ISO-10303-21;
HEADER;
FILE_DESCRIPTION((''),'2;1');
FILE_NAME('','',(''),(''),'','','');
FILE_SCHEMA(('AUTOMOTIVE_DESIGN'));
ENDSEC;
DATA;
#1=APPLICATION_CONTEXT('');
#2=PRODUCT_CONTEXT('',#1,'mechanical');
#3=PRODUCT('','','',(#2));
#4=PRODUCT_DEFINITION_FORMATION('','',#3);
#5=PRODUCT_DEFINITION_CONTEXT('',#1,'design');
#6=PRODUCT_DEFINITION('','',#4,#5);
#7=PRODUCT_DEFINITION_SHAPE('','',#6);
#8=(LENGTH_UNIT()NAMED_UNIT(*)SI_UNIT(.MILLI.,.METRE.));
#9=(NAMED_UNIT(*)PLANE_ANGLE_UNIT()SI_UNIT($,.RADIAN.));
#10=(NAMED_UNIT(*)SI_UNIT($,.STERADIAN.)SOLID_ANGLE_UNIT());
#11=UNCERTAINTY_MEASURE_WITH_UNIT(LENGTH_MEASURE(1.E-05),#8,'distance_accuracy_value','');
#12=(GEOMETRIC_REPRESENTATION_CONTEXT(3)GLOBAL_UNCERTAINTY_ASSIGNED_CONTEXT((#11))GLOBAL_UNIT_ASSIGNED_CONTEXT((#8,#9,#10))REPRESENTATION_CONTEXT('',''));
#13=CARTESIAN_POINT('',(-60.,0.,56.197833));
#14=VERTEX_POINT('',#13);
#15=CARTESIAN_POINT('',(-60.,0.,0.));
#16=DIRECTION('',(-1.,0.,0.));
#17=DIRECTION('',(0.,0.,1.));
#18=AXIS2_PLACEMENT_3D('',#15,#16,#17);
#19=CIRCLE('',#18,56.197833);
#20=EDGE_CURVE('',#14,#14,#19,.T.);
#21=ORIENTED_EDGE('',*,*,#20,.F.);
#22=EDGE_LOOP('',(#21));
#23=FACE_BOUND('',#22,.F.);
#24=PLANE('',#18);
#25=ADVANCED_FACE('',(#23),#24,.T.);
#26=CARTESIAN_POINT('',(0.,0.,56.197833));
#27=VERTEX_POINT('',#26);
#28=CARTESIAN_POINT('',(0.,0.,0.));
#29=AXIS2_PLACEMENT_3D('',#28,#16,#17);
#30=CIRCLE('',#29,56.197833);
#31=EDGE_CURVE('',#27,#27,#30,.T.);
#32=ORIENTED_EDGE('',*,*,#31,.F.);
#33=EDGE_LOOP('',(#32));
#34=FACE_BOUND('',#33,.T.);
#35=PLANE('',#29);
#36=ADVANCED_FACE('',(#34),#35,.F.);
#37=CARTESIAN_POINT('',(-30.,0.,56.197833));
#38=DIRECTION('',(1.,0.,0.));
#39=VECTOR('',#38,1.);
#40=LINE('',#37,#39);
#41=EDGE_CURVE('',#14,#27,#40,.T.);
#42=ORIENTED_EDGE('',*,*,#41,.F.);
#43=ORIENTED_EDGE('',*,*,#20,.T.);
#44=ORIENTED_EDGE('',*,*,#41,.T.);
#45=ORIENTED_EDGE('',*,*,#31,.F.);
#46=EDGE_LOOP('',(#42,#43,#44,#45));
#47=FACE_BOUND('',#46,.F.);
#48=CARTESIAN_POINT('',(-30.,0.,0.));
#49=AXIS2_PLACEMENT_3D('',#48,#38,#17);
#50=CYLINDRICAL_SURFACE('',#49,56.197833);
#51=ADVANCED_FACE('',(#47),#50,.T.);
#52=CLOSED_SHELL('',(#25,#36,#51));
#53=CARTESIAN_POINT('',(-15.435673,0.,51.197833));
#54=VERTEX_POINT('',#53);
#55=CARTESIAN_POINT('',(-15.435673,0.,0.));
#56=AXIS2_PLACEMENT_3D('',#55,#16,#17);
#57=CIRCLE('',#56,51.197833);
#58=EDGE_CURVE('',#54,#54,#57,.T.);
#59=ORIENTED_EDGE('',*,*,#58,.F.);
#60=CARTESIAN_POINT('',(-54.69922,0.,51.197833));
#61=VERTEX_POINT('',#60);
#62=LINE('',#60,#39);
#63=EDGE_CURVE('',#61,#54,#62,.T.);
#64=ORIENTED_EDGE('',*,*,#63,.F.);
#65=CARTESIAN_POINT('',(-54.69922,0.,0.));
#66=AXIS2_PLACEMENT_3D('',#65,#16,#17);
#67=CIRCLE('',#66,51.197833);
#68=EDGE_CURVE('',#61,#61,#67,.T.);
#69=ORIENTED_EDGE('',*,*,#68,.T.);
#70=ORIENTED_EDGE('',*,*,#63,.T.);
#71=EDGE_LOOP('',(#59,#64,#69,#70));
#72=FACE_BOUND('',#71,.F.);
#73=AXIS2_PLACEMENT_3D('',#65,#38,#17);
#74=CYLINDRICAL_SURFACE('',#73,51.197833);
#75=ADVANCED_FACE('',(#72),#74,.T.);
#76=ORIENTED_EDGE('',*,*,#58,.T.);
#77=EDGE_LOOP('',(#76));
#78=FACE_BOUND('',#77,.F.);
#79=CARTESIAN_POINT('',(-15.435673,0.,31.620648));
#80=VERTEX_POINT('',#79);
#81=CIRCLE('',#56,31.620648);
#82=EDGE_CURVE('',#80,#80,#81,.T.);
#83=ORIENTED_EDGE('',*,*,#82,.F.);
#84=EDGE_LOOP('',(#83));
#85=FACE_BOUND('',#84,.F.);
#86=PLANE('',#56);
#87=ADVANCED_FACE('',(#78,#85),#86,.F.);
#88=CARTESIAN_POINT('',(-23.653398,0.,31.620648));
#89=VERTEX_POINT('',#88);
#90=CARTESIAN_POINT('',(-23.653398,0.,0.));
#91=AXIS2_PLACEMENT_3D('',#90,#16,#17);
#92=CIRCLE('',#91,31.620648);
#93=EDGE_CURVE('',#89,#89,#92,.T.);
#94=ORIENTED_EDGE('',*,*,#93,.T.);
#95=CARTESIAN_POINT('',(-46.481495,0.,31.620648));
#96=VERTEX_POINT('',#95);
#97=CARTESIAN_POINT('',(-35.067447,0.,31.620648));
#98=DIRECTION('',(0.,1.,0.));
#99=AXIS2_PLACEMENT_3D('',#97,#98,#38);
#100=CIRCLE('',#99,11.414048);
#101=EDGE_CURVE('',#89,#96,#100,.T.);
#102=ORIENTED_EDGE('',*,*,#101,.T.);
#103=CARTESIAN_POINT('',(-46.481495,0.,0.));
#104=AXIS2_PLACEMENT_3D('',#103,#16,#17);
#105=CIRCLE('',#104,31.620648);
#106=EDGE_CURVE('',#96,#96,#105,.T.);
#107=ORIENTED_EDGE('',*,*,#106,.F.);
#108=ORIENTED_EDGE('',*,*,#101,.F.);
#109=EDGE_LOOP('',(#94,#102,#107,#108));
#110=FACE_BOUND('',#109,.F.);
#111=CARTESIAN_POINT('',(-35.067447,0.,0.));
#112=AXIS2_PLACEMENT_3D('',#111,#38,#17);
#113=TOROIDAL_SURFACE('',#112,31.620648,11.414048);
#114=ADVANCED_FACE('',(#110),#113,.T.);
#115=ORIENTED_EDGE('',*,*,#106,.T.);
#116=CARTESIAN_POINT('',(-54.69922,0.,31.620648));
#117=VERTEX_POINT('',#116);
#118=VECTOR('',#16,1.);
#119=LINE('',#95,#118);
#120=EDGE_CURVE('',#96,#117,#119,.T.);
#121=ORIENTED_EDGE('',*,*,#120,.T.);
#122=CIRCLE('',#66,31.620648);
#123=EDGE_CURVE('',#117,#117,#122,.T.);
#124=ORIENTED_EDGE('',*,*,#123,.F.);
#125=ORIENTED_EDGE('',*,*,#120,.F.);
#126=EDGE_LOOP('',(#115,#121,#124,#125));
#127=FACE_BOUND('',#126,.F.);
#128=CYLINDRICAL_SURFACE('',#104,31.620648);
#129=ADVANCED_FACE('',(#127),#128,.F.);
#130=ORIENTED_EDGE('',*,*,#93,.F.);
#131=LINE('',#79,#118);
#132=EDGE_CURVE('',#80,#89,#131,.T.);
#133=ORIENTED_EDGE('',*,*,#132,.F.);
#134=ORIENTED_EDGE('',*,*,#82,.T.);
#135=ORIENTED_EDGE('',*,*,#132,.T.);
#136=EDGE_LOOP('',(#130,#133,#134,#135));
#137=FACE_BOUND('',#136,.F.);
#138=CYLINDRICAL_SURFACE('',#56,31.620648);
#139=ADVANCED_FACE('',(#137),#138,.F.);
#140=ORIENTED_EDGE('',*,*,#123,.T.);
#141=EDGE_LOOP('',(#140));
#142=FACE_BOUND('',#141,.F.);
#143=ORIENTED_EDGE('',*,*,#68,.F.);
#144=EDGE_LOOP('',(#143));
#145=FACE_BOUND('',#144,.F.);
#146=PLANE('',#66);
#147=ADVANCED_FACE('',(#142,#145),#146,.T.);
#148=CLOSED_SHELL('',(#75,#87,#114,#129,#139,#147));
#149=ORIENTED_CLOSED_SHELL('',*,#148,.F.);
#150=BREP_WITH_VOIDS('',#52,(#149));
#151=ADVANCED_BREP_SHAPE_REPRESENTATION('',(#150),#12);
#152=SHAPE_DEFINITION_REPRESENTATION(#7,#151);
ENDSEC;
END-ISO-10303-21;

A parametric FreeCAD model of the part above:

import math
import FreeCAD as App
import Part
import Sketcher
Q = App.Units.Quantity


def add_polygon(sketch, points):
    """Adds a closed chain of lines whose ends are joined by coincident constraints."""
    first, n = sketch.GeometryCount, len(points)
    for a, b in zip(points, points[1:] + points[:1]):
        sketch.addGeometry(Part.LineSegment(App.Vector(*a, 0), App.Vector(*b, 0)), False)
    for i in range(n):
        sketch.addConstraint(Sketcher.Constraint("Coincident", first + i, 2, first + (i + 1) % n, 1))

doc = App.newDocument("Part")
body = doc.addObject("PartDesign::Body", "Body")

# Sketch on XZ plane
sketch1 = body.newObject("Sketcher::SketchObject", "Sketch")
sketch1.AttachmentSupport = (doc.getObject("XZ_Plane"), [""])
sketch1.MapMode = "FlatFace"
add_polygon(sketch1, [(-60, 56), (-60, 0), (0, 0), (0, 56)])  # lines 0-3
sketch1.addGeometry(Part.LineSegment(App.Vector(-46, 32, 0), App.Vector(-55, 32, 0)), False)  # 4
sketch1.addGeometry(Part.LineSegment(App.Vector(-55, 32, 0), App.Vector(-55, 51, 0)), False)  # 5
sketch1.addGeometry(Part.LineSegment(App.Vector(-55, 51, 0), App.Vector(-15, 51, 0)), False)  # 6
sketch1.addGeometry(Part.LineSegment(App.Vector(-15, 51, 0), App.Vector(-15, 32, 0)), False)  # 7
sketch1.addGeometry(Part.LineSegment(App.Vector(-15, 32, 0), App.Vector(-24, 32, 0)), False)  # 8
sketch1.addGeometry(Part.ArcOfCircle(Part.Circle(App.Vector(-35, 32, 0), App.Vector(0, 0, 1), 11), math.radians(180), math.radians(360)), False)  # 9
sketch1.addConstraint([
    Sketcher.Constraint("Coincident", 4, 2, 5, 1),
    Sketcher.Constraint("Coincident", 5, 2, 6, 1),
    Sketcher.Constraint("Coincident", 6, 2, 7, 1),
    Sketcher.Constraint("Coincident", 7, 2, 8, 1),
    Sketcher.Constraint("Coincident", 8, 2, 9, 2),
    Sketcher.Constraint("Coincident", 9, 1, 4, 1),
    Sketcher.Constraint("Vertical", 0),
    Sketcher.Constraint("Horizontal", 1),
    Sketcher.Constraint("Vertical", 2),
    Sketcher.Constraint("Horizontal", 3),
    Sketcher.Constraint("Horizontal", 4),
    Sketcher.Constraint("Vertical", 5),
    Sketcher.Constraint("Horizontal", 6),
    Sketcher.Constraint("Vertical", 7),
    Sketcher.Constraint("Horizontal", 8),
    Sketcher.Constraint("Coincident", 1, 2, -1, 1),
    Sketcher.Constraint("Horizontal", 9, 3, 4, 2),
    Sketcher.Constraint("Horizontal", 4, 2, 7, 2),
    Sketcher.Constraint("Equal", 4, 8),
    Sketcher.Constraint("DistanceX", 1, 1, 1, 2, Q("60 mm")),
    Sketcher.Constraint("DistanceY", 5, 2, 3, 2, Q("5 mm")),
    Sketcher.Constraint("Radius", 9, Q("11.414048 mm")),
    Sketcher.Constraint("DistanceX", 8, 2, -1, 1, Q("23.653398 mm")),
    Sketcher.Constraint("DistanceX", 4, 2, 4, 1, Q("8.217725 mm")),
    Sketcher.Constraint("DistanceY", 0, 2, 0, 1, Q("56.197833 mm")),
    Sketcher.Constraint("DistanceY", 5, 1, 5, 2, Q("19.577186 mm")),
])
revolution = body.newObject("PartDesign::Revolution", "Revolution")
revolution.Profile = sketch1
revolution.ReferenceAxis = (sketch1, ["H_Axis"])
revolution.Angle = 360

doc.recompute()
